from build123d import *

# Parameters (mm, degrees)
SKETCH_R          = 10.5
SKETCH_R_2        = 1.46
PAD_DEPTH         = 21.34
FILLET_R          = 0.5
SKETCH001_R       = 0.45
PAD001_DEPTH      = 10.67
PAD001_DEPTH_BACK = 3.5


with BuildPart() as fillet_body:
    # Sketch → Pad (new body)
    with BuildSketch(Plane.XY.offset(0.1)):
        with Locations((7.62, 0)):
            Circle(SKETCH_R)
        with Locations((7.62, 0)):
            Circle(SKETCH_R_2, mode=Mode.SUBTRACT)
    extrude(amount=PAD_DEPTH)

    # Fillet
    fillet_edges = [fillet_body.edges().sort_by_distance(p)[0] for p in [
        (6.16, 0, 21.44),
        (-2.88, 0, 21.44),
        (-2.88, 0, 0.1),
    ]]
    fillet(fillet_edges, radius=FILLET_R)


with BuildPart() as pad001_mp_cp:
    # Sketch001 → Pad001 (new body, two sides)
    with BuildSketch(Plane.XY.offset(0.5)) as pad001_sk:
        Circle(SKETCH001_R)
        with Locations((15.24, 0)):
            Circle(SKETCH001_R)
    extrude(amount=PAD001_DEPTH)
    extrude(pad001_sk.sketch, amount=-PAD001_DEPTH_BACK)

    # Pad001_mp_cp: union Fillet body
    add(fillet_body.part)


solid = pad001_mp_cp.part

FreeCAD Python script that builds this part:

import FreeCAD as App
import Part
import Sketcher
Q = App.Units.Quantity


def edges_at(feature, points):
    """Names of the edges that pass closest to the given points."""
    edges = feature.Shape.Edges
    near = lambda p: min(range(len(edges)), key=lambda i: edges[i].distToShape(Part.Vertex(*p))[0])
    return sorted({f"Edge{near(p) + 1}" for p in points})

doc = App.newDocument("Part")
body = doc.addObject("PartDesign::Body", "Body")

sketch1 = body.newObject("Sketcher::SketchObject", "Sketch")
sketch1.AttachmentSupport = (doc.getObject("XY_Plane"), [""])
sketch1.MapMode = "FlatFace"
sketch1.AttachmentOffset = App.Placement(App.Vector(0, 0, 0.1), App.Rotation())
sketch1.addGeometry([
    Part.Circle(App.Vector(7.6, 0, 0), App.Vector(0, 0, 1), 10.5),
    Part.Circle(App.Vector(7.6, 0, 0), App.Vector(0, 0, 1), 1.5),
], False)
sketch1.addConstraint([
    Sketcher.Constraint("Coincident", 1, 3, 0, 3),
    Sketcher.Constraint("PointOnObject", 0, 3, -1),
    Sketcher.Constraint("Diameter", 0, Q("21 mm")),
    Sketcher.Constraint("Diameter", 1, Q("2.92 mm")),
    Sketcher.Constraint("DistanceX", -1, 1, 0, 3, Q("7.62 mm")),
])
pad1 = body.newObject("PartDesign::Pad", "Pad")
pad1.Profile = sketch1
pad1.Length = 21.34
doc.recompute()

fillet = body.newObject("PartDesign::Fillet", "Fillet")
fillet.Base = (pad1, edges_at(pad1, [(6.16, 0, 21.44), (-2.88, 0, 21.44), (-2.88, 0, 0.1)]))
fillet.Radius = 0.5
body2 = doc.addObject("PartDesign::Body", "Body001")
body2.AllowCompound = True

sketch2 = body2.newObject("Sketcher::SketchObject", "Sketch001")
sketch2.AttachmentSupport = (doc.getObject("XY_Plane001"), [""])
sketch2.MapMode = "FlatFace"
sketch2.AttachmentOffset = App.Placement(App.Vector(0, 0, 0.5), App.Rotation())
sketch2.addGeometry([
    Part.Circle(App.Vector(0, 0, 0), App.Vector(0, 0, 1), 0.45),
    Part.Circle(App.Vector(15.24, 0, 0), App.Vector(0, 0, 1), 0.45),
], False)
sketch2.addConstraint([
    Sketcher.Constraint("Coincident", 0, 3, -1, 1),
    Sketcher.Constraint("Equal", 0, 1),
    Sketcher.Constraint("PointOnObject", 1, 3, -1),
    Sketcher.Constraint("Diameter", 0, Q("0.9 mm")),
    Sketcher.Constraint("DistanceX", -1, 1, 1, 3, Q("15.24 mm")),
])
pad2 = body2.newObject("PartDesign::Pad", "Pad001")
pad2.Profile = sketch2
pad2.Type = "TwoLengths"
pad2.Length = 10.67
pad2.Length2 = 3.5
doc.recompute()

boolean = body2.newObject("PartDesign::Boolean", "Boolean")
boolean.Type = "Fuse"
boolean.addObjects([body])

doc.recompute()
